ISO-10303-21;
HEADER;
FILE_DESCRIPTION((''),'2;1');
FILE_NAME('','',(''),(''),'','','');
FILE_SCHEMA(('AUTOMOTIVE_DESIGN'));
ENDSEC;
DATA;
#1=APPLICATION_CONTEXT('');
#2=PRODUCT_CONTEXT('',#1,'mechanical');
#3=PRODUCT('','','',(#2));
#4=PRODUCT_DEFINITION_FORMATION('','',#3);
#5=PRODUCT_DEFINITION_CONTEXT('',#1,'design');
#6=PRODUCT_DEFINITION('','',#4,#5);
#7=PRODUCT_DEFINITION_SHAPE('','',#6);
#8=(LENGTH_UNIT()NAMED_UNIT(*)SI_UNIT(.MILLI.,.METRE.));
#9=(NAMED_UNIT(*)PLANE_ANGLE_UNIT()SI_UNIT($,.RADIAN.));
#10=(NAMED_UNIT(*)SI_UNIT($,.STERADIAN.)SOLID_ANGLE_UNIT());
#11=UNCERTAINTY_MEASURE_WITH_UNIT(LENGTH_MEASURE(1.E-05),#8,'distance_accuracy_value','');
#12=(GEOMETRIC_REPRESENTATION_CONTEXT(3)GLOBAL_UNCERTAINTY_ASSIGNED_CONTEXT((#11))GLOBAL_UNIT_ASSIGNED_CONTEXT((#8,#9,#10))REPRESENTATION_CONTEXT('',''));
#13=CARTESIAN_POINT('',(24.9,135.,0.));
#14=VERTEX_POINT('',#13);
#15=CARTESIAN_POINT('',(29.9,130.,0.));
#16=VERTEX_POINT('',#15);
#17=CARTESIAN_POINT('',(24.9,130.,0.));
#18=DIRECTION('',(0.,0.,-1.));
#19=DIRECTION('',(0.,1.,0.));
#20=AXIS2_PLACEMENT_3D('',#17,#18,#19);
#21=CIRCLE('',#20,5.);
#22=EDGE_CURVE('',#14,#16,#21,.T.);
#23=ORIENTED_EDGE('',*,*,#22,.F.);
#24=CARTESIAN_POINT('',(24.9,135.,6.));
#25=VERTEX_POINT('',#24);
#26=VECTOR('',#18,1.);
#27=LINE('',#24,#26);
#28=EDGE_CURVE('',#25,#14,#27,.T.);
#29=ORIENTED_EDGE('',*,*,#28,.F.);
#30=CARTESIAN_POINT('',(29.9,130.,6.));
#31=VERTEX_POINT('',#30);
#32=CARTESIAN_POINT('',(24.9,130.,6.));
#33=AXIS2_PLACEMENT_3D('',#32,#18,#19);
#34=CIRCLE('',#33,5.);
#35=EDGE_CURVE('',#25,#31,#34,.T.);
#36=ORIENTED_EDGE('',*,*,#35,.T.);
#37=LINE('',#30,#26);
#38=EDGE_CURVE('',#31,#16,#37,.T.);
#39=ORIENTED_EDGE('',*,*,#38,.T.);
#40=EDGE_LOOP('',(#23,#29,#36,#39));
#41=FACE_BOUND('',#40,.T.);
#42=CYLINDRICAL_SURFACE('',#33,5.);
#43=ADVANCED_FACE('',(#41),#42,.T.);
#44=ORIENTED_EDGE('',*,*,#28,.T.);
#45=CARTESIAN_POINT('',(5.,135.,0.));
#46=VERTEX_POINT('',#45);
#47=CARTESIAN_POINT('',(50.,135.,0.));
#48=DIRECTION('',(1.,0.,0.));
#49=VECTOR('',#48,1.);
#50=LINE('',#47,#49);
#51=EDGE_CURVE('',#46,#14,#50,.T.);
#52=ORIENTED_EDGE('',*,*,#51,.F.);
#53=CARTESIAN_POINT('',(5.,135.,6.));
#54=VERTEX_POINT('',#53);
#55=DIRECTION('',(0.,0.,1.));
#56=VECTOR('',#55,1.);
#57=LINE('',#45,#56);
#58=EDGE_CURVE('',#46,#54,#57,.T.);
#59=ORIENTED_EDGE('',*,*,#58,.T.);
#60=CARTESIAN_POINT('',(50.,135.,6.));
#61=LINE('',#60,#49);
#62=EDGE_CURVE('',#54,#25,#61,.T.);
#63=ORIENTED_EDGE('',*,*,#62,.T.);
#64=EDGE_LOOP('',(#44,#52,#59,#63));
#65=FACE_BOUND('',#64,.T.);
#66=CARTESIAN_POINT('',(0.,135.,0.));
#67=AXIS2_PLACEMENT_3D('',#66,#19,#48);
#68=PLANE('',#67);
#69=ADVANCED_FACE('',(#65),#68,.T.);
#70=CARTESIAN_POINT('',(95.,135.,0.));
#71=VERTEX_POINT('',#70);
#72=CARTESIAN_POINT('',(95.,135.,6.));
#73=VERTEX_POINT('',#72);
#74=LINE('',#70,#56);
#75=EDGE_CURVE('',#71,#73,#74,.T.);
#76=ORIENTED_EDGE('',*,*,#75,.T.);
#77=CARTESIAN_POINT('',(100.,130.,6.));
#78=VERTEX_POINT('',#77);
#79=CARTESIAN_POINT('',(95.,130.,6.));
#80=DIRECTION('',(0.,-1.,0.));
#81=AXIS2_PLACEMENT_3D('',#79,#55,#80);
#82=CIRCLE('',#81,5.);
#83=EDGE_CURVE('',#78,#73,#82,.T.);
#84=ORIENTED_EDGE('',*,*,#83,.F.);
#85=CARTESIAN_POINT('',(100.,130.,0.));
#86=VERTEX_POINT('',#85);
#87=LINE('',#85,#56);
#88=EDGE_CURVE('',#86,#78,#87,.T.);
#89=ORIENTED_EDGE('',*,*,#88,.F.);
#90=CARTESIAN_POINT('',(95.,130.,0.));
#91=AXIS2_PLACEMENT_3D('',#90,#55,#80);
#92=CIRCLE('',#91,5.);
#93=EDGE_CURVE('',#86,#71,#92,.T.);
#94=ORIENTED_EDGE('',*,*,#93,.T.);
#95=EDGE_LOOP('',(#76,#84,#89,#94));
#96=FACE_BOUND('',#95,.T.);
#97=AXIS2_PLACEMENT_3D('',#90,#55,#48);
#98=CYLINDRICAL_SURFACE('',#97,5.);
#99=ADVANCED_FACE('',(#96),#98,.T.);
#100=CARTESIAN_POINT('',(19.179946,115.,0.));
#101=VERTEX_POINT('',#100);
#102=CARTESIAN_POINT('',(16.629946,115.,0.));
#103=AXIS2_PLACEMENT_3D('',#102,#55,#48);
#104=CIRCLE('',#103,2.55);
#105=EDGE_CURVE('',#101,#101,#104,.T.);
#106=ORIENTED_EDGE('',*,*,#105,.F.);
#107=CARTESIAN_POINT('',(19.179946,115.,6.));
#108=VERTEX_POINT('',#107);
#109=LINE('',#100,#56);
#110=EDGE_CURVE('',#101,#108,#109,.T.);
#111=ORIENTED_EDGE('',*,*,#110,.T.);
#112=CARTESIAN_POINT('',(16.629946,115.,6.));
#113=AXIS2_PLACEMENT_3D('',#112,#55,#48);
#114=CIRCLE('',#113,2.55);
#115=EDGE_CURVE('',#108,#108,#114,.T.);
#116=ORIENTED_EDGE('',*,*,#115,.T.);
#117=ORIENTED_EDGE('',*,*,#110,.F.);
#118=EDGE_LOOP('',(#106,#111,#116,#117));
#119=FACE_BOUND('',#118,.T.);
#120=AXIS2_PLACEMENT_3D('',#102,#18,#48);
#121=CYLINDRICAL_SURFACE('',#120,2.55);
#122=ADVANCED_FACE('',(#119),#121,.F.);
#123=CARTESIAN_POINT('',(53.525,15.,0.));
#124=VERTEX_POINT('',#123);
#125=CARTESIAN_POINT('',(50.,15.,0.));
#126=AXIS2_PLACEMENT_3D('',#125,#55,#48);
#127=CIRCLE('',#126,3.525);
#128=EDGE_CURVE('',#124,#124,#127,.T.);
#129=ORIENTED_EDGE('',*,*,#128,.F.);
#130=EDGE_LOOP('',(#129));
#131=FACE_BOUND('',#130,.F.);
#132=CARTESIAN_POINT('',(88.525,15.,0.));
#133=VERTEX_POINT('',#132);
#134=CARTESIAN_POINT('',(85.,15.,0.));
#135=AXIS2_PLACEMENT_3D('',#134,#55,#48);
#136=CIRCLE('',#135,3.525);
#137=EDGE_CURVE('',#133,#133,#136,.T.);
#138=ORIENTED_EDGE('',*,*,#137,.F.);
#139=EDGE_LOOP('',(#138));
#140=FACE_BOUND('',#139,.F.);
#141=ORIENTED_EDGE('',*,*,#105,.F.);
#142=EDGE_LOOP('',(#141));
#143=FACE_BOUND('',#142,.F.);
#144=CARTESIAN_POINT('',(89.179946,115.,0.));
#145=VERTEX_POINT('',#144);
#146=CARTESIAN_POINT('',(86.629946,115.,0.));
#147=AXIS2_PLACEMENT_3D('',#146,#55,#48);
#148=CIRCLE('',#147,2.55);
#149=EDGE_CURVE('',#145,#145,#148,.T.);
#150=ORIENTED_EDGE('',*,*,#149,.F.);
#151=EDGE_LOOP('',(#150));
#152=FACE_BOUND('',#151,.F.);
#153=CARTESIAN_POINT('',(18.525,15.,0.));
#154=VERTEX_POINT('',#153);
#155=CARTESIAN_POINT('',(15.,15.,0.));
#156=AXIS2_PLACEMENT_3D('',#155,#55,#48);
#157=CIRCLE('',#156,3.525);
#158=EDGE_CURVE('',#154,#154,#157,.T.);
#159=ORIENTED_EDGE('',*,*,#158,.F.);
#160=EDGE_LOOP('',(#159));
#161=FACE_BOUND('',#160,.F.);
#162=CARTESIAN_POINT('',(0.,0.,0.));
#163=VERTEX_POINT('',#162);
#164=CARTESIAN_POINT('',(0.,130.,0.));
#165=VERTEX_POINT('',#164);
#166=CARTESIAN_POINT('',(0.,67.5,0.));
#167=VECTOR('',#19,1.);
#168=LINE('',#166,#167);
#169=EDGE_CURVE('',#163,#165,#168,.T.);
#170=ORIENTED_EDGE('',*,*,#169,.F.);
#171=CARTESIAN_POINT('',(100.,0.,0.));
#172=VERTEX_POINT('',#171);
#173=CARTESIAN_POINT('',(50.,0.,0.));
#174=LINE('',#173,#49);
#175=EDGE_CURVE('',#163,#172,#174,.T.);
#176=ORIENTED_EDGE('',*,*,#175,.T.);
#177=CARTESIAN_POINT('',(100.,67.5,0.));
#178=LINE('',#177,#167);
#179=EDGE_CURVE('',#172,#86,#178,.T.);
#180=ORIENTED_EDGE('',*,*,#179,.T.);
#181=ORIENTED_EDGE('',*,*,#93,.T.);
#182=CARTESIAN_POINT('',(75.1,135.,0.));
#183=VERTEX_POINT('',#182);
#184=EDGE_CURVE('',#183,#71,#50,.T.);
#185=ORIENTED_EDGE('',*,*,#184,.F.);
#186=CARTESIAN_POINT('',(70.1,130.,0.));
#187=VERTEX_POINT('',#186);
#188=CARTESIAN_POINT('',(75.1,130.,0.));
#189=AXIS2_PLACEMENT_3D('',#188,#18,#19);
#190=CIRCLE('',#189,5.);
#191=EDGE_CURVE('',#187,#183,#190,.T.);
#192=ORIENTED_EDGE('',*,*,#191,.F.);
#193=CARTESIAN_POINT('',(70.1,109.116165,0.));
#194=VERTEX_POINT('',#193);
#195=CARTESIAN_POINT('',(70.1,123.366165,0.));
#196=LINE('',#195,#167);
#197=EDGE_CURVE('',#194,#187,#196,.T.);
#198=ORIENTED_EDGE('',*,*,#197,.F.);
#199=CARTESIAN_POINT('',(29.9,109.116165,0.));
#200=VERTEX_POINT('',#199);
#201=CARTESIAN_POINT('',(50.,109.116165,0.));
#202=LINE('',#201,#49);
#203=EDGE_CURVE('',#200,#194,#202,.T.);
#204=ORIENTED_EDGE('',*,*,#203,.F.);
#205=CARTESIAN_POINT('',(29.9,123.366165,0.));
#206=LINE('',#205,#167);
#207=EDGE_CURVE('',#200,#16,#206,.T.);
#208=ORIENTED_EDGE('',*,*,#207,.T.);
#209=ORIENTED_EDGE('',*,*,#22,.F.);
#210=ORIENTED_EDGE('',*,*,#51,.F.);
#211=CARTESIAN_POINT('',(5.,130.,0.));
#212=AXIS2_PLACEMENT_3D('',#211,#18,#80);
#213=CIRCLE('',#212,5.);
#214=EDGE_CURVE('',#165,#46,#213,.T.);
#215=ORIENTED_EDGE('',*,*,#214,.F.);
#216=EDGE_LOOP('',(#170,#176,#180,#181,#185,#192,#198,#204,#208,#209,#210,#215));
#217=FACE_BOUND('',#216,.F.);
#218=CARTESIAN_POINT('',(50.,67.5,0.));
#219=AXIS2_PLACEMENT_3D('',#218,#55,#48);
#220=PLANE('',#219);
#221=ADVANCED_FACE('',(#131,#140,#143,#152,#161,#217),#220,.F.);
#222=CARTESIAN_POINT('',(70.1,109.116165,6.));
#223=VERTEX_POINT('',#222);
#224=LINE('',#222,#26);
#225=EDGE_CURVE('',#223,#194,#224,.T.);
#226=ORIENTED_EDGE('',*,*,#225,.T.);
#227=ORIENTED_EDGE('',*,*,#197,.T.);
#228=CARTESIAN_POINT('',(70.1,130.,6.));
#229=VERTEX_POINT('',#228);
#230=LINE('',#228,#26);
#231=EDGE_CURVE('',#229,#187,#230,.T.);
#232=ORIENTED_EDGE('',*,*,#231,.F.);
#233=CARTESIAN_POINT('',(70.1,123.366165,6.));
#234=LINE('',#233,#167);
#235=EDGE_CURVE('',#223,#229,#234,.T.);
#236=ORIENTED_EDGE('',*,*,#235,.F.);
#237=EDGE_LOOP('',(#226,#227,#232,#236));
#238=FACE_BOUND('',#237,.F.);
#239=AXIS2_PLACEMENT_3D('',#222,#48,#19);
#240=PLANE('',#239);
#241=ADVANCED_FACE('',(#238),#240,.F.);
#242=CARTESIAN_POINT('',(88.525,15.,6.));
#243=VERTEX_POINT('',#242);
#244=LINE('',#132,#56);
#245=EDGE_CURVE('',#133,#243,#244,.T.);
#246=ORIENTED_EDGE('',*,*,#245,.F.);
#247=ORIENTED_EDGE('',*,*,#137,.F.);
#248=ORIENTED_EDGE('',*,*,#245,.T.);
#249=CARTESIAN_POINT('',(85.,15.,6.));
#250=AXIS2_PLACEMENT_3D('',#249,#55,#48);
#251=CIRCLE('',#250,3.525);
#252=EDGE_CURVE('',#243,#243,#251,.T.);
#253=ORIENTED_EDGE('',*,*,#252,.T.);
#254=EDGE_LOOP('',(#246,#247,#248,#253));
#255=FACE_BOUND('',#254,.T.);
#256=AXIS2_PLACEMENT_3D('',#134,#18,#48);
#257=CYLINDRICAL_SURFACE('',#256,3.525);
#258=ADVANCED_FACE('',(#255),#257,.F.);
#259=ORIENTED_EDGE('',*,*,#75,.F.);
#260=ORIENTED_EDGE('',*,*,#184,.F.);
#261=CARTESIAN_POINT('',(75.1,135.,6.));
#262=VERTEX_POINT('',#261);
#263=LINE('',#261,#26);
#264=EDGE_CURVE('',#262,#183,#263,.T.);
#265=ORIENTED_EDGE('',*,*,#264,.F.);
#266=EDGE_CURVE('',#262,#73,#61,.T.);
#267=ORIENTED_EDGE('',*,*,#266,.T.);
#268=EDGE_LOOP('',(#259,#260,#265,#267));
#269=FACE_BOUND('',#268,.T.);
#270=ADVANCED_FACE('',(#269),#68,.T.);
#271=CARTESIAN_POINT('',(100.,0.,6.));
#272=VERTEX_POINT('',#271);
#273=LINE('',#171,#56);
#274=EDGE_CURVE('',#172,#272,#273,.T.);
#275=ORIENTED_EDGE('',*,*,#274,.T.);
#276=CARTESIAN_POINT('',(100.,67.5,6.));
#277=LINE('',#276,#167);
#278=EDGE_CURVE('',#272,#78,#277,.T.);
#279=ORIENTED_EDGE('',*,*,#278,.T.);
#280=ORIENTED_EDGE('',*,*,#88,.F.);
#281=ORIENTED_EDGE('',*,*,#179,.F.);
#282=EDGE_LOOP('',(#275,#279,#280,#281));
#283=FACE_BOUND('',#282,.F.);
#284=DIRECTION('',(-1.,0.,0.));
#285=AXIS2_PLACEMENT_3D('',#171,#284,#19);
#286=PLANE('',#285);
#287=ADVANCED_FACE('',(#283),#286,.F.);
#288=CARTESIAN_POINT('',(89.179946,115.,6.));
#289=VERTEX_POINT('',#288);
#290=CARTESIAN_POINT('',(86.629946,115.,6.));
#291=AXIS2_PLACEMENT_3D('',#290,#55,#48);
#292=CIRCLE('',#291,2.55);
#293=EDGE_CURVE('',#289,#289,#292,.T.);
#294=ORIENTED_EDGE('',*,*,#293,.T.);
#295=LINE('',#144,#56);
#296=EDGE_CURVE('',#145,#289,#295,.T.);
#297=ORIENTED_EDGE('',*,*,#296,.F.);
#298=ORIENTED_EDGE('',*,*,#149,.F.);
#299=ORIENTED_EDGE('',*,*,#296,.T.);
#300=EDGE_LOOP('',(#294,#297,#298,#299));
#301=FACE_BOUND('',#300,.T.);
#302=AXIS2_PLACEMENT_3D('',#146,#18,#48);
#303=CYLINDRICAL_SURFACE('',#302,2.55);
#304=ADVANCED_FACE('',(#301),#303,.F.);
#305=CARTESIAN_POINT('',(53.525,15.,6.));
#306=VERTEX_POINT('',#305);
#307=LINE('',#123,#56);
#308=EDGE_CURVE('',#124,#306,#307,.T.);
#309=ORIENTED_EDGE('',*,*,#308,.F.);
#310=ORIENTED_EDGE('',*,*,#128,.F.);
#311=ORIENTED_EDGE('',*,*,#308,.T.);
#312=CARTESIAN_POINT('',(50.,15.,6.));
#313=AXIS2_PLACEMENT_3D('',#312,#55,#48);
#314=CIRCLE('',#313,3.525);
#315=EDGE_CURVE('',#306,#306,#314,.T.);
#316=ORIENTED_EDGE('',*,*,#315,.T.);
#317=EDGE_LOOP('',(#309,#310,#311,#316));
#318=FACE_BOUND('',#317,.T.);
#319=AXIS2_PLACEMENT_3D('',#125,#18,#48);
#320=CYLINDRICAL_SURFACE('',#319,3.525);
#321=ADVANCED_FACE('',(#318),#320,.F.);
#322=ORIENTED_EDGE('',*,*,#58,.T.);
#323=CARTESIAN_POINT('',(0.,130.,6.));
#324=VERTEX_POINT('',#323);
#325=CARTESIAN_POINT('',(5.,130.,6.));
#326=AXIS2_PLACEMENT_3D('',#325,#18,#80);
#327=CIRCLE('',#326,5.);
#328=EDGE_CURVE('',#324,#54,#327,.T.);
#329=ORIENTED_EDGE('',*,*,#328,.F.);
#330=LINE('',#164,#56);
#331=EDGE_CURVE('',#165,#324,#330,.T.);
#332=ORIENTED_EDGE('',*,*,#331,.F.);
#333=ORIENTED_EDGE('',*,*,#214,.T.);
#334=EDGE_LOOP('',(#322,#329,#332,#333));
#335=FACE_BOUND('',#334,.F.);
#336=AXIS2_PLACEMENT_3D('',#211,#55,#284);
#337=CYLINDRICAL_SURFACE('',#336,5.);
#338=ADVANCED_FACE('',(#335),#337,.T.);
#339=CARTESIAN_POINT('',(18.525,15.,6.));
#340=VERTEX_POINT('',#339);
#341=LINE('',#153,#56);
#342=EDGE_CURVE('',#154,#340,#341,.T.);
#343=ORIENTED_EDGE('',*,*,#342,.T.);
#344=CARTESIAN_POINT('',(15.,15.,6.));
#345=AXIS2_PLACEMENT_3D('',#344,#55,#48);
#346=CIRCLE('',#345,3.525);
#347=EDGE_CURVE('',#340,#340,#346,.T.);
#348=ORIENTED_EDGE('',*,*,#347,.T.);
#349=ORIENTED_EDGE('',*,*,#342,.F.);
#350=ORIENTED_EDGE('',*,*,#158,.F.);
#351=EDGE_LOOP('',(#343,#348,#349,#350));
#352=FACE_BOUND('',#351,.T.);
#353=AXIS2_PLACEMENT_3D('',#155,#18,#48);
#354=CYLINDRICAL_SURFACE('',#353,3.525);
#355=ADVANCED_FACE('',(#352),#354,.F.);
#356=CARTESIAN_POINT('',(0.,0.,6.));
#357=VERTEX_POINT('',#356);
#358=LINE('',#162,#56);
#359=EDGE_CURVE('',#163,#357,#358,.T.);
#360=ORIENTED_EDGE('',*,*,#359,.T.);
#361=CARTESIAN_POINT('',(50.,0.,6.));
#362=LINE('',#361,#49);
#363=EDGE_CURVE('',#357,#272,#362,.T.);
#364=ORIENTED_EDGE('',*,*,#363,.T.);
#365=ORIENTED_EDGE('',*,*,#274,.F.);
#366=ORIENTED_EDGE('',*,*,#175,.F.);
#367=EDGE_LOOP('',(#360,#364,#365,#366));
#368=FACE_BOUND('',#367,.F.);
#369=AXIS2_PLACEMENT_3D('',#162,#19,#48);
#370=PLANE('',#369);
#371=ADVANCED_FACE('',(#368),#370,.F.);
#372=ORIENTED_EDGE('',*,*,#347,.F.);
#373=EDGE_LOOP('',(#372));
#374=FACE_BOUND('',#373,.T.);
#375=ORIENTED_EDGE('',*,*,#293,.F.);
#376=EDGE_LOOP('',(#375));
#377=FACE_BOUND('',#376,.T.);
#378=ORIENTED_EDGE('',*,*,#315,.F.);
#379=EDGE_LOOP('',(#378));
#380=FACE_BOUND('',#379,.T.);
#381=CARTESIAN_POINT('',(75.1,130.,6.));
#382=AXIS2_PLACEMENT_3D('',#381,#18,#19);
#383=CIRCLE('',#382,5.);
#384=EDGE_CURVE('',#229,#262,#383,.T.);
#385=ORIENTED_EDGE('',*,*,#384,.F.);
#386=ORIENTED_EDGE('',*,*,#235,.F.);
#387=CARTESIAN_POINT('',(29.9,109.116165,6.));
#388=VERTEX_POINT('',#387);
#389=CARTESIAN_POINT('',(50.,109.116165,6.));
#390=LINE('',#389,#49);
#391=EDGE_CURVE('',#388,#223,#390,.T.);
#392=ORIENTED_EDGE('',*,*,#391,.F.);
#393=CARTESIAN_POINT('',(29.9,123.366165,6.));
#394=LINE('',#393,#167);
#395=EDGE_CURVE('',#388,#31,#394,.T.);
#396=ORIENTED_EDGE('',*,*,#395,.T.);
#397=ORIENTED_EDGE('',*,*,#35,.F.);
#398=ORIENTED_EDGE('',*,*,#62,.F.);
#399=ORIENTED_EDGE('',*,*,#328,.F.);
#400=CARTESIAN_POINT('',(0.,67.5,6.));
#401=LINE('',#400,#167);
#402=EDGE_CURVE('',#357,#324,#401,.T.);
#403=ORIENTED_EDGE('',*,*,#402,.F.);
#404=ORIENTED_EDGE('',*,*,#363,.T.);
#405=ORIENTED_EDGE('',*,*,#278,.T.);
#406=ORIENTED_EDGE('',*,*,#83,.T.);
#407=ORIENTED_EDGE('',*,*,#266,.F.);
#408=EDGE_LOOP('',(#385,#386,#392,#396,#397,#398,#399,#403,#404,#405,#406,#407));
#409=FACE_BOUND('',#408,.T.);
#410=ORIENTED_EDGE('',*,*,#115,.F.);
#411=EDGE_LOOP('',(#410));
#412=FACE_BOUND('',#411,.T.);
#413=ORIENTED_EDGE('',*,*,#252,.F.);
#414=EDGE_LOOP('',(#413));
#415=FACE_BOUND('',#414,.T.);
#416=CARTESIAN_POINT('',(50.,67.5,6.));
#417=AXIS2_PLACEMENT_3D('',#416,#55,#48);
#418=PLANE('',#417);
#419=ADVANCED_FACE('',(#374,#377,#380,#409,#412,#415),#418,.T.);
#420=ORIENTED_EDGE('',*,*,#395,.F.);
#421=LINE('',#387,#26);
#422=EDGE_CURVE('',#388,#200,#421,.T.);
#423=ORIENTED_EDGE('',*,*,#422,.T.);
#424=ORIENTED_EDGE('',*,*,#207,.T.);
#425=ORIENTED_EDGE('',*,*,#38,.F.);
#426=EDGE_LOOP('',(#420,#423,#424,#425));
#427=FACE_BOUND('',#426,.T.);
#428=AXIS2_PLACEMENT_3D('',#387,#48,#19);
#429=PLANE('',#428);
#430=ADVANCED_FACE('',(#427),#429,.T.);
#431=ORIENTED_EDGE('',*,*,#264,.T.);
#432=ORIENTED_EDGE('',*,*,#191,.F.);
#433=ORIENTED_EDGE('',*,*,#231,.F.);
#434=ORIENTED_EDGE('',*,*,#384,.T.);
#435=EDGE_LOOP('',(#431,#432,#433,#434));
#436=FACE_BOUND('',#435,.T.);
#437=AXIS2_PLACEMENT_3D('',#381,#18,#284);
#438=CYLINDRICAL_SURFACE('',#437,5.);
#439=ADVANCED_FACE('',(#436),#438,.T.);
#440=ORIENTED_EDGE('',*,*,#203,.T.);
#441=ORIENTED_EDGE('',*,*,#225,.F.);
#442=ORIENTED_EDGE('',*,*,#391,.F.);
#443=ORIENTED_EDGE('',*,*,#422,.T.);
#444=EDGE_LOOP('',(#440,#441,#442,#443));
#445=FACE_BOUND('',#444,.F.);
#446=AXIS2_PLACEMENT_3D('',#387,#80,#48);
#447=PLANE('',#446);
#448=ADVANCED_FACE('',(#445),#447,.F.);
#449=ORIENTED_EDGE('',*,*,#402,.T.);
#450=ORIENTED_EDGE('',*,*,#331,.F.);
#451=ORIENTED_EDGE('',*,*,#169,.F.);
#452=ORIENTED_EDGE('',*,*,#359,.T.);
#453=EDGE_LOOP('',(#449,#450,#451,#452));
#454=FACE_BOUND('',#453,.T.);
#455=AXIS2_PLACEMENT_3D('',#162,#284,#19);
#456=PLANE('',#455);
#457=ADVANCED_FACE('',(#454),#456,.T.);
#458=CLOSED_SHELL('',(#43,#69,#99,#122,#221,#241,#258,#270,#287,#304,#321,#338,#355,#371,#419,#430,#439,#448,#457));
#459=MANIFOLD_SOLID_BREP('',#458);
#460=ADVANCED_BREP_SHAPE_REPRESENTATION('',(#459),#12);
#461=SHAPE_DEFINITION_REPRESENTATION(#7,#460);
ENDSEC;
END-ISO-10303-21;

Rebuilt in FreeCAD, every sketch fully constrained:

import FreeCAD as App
import Part
import Sketcher


def edges_at(feature, points):
    """Names of the edges that pass closest to the given points."""
    edges = feature.Shape.Edges
    near = lambda p: min(range(len(edges)), key=lambda i: edges[i].distToShape(Part.Vertex(*p))[0])
    return sorted({f"Edge{near(p) + 1}" for p in points})


def add_polygon(sketch, points):
    """Adds a closed chain of lines whose ends are joined by coincident constraints."""
    first, n = sketch.GeometryCount, len(points)
    for a, b in zip(points, points[1:] + points[:1]):
        sketch.addGeometry(Part.LineSegment(App.Vector(*a, 0), App.Vector(*b, 0)), False)
    for i in range(n):
        sketch.addConstraint(Sketcher.Constraint("Coincident", first + i, 2, first + (i + 1) % n, 1))

doc = App.newDocument("Part")
body = doc.addObject("PartDesign::Body", "Body")

# Sketch on XY plane
sketch1 = doc.addObject("Sketcher::SketchObject", "Sketch")
body.addObject(sketch1)
sketch1.AttachmentSupport = (doc.XY_Plane, [""])
sketch1.MapMode = "FlatFace"
add_polygon(sketch1, [(0, 135), (0, 0), (100, 0), (100, 135)])  # lines 0-3
sketch1.addGeometry(Part.Circle(App.Vector(15, 15, 0), App.Vector(0, 0, 1), 3.5), False)  # 4
sketch1.addGeometry(Part.Circle(App.Vector(50, 15, 0), App.Vector(0, 0, 1), 3.5), False)  # 5
sketch1.addGeometry(Part.Circle(App.Vector(85, 15, 0), App.Vector(0, 0, 1), 3.5), False)  # 6
sketch1.addGeometry(Part.Circle(App.Vector(16.6, 115, 0), App.Vector(0, 0, 1), 2.5), False)  # 7
sketch1.addGeometry(Part.Circle(App.Vector(86.6, 115, 0), App.Vector(0, 0, 1), 2.5), False)  # 8
sketch1.addConstraint([
    Sketcher.Constraint("Vertical", 0),
    Sketcher.Constraint("Horizontal", 1),
    Sketcher.Constraint("Vertical", 2),
    Sketcher.Constraint("Horizontal", 3),
    Sketcher.Constraint("Coincident", 0, 2, -1, 1),
    Sketcher.Constraint("Equal", 4, 5),
    Sketcher.Constraint("Equal", 5, 6),
    Sketcher.Constraint("Equal", 7, 8),
    Sketcher.Constraint("Horizontal", 4, 3, 5, 3),
    Sketcher.Constraint("Horizontal", 5, 3, 6, 3),
    Sketcher.Constraint("Horizontal", 7, 3, 8, 3),
    Sketcher.Constraint("Diameter", 7, 5.1),
    Sketcher.Constraint("Diameter", 4, 7.05),
    Sketcher.Constraint("DistanceX", 1, 1, 1, 2, 100.0),
    Sketcher.Constraint("DistanceY", 0, 2, 0, 1, 135.0),
    Sketcher.Constraint("DistanceX", -1, 1, 4, 3, 15.0),
    Sketcher.Constraint("DistanceY", -1, 1, 4, 3, 15.0),
    Sketcher.Constraint("DistanceX", -1, 1, 5, 3, 50.0),
    Sketcher.Constraint("DistanceX", -1, 1, 6, 3, 85.0),
    Sketcher.Constraint("DistanceY", -1, 1, 7, 3, 115.0),
    Sketcher.Constraint("DistanceX", 7, 3, 8, 3, 70.0),
    Sketcher.Constraint("DistanceX", -1, 1, 7, 3, 16.629946),
])
pad1 = doc.addObject("PartDesign::Pad", "Pad")
body.addObject(pad1)
pad1.Profile = sketch1
pad1.Length = 6

# Sketch on XY plane
sketch2 = doc.addObject("Sketcher::SketchObject", "Sketch001")
body.addObject(sketch2)
sketch2.AttachmentSupport = (doc.XY_Plane, [""])
sketch2.MapMode = "FlatFace"
sketch2.AttachmentOffset = App.Placement(App.Vector(0, 0, 6), App.Rotation())
add_polygon(sketch2, [(30, 138), (30, 109), (70, 109), (70, 138)])  # lines 0-3
sketch2.addConstraint([
    Sketcher.Constraint("Vertical", 0),
    Sketcher.Constraint("Horizontal", 1),
    Sketcher.Constraint("Vertical", 2),
    Sketcher.Constraint("Horizontal", 3),
    Sketcher.Constraint("DistanceX", 1, 1, 1, 2, 40.2),
    Sketcher.Constraint("DistanceY", 0, 2, 0, 1, 28.5),
    Sketcher.Constraint("DistanceX", -1, 1, 0, 2, 29.9),
    Sketcher.Constraint("DistanceY", -1, 1, 0, 2, 109.116165),
])
pocket1 = doc.addObject("PartDesign::Pocket", "Pocket")
body.addObject(pocket1)
pocket1.Profile = sketch2
pocket1.Length = 6
doc.recompute()

fillet = doc.addObject("PartDesign::Fillet", "Fillet")
body.addObject(fillet)
fillet.Base = (pocket1, edges_at(pocket1, [
    (0, 135, 3),
    (29.9, 135, 3),
    (70.1, 135, 3),
    (100, 135, 3),
]))
fillet.Radius = 5

doc.recompute()
